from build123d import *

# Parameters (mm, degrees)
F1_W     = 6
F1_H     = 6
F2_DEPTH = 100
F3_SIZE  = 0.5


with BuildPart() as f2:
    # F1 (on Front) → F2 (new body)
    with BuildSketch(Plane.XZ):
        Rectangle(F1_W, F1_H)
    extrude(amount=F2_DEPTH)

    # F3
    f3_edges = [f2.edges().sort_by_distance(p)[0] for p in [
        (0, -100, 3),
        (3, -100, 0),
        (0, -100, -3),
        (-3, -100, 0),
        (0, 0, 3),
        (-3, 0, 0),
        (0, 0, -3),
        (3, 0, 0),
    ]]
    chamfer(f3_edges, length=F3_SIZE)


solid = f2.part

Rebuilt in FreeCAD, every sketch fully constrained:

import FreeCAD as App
import Part
import Sketcher
from FreeCAD import Vector
Q = App.Units.Quantity


def edges_at(feature, points):
    """Names of the edges that pass closest to the given points."""
    edges = feature.Shape.Edges
    near = lambda p: min(range(len(edges)), key=lambda i: edges[i].distToShape(Part.Vertex(*p))[0])
    return sorted({f"Edge{near(p) + 1}" for p in points})


def add_polygon(sketch, points):
    """Adds a closed chain of lines whose ends are joined by coincident constraints."""
    first, n = sketch.GeometryCount, len(points)
    for a, b in zip(points, points[1:] + points[:1]):
        sketch.addGeometry(Part.LineSegment(App.Vector(*a, 0), App.Vector(*b, 0)), False)
    for i in range(n):
        sketch.addConstraint(Sketcher.Constraint("Coincident", first + i, 2, first + (i + 1) % n, 1))

doc = App.newDocument("Part")
body = doc.addObject("PartDesign::Body", "Body")

# Sketch on XZ plane
sketch1 = body.newObject("Sketcher::SketchObject", "Sketch")
sketch1.AttachmentSupport = (doc.getObject("XZ_Plane"), [""])
sketch1.MapMode = "FlatFace"
add_polygon(sketch1, [(-3, 3), (-3, -3), (3, -3), (3, 3)])  # lines 0-3
sketch1.addConstraint([
    Sketcher.Constraint("Vertical", 0),
    Sketcher.Constraint("Horizontal", 1),
    Sketcher.Constraint("Vertical", 2),
    Sketcher.Constraint("Horizontal", 3),
    Sketcher.Constraint("Symmetric", 0, 2, 2, 2, -1, 1),
    Sketcher.Constraint("Equal", 3, 0),
    Sketcher.Constraint("DistanceX", 1, 1, 1, 2, Q("6 mm")),
])
pad1 = body.newObject("PartDesign::Pad", "Pad")
pad1.Profile = sketch1
pad1.Length = 100
doc.recompute()

chamfer = body.newObject("PartDesign::Chamfer", "Chamfer")
chamfer.Base = (pad1, edges_at(pad1, [
    (0, -100, 3),
    (3, -100, 0),
    (0, -100, -3),
    (-3, -100, 0),
    (0, 0, 3),
    (-3, 0, 0),
    (0, 0, -3),
    (3, 0, 0),
]))
chamfer.Size = 0.5

doc.recompute()
